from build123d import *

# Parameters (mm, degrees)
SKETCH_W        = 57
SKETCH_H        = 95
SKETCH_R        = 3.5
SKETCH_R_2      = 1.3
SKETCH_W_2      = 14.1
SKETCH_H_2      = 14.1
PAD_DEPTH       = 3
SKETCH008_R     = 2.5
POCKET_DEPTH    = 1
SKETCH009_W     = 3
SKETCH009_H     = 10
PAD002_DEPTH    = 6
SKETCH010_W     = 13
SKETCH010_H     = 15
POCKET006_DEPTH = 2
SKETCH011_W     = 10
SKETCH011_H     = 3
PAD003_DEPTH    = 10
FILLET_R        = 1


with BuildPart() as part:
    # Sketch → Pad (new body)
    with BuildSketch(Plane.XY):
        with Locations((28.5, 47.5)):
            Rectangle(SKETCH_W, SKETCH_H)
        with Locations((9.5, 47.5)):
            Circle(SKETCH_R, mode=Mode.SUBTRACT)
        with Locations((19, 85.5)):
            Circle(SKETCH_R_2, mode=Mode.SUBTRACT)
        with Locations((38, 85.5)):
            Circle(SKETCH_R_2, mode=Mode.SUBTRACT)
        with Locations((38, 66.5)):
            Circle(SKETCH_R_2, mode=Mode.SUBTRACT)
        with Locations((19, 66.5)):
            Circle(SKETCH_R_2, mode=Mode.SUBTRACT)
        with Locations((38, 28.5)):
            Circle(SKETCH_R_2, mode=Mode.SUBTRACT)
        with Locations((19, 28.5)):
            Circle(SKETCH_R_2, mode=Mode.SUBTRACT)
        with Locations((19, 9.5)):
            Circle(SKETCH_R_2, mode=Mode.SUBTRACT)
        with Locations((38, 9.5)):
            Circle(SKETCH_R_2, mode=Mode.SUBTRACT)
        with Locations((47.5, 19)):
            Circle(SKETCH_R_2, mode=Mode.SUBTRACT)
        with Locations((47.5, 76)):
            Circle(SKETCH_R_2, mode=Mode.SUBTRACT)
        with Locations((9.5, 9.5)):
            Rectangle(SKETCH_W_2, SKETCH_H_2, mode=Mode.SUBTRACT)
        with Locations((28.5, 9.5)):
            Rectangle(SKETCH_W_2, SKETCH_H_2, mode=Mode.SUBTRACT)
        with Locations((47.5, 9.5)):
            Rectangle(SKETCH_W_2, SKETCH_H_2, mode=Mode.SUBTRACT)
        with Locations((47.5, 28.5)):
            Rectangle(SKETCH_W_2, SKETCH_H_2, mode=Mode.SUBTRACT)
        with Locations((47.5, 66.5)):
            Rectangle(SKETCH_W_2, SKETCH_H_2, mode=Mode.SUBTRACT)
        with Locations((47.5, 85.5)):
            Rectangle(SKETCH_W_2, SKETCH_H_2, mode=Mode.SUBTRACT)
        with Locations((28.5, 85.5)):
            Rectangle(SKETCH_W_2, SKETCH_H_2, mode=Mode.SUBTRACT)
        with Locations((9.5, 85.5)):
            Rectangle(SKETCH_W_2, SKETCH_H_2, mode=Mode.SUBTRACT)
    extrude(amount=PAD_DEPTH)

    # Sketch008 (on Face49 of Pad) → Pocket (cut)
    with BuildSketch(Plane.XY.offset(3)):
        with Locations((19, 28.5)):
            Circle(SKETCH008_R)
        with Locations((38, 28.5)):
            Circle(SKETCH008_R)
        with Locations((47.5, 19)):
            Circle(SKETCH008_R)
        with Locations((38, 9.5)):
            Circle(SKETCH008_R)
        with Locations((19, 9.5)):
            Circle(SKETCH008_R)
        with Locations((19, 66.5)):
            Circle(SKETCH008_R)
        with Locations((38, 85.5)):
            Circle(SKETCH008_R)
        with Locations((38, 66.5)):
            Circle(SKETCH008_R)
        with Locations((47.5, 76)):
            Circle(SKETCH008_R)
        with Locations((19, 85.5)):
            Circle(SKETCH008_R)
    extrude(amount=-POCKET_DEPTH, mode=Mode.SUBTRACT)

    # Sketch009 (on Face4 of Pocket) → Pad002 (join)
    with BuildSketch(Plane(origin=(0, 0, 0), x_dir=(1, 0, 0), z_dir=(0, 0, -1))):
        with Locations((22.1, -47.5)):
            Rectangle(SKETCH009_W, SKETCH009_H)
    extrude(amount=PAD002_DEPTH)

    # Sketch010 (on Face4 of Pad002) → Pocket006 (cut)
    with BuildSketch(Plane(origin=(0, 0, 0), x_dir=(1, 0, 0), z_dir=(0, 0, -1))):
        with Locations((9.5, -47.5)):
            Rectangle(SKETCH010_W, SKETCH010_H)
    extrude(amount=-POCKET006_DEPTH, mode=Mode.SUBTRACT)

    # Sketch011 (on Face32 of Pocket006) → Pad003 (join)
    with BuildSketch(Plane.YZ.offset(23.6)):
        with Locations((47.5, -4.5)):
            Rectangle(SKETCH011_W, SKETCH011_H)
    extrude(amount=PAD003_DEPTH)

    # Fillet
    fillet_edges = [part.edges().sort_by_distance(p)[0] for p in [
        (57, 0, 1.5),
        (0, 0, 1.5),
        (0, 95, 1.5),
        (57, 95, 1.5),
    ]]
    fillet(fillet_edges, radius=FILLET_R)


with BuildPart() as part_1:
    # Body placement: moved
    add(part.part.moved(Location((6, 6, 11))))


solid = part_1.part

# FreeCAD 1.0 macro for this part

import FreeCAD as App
import Part
import Sketcher
Q = App.Units.Quantity


def edges_at(feature, points):
    """Names of the edges that pass closest to the given points."""
    edges = feature.Shape.Edges
    near = lambda p: min(range(len(edges)), key=lambda i: edges[i].distToShape(Part.Vertex(*p))[0])
    return sorted({f"Edge{near(p) + 1}" for p in points})

doc = App.newDocument("Part")
body = doc.addObject("PartDesign::Body", "Body")

sketch1 = body.newObject("Sketcher::SketchObject", "Sketch")
sketch1.AttachmentSupport = (doc.getObject("XY_Plane"), [""])
sketch1.MapMode = "FlatFace"
sketch1.addGeometry(Part.LineSegment(App.Vector(0, 95, 0), App.Vector(0, 0, 0)), False)
sketch1.addGeometry(Part.LineSegment(App.Vector(0, 0, 0), App.Vector(57, 0, 0)), False)
sketch1.addGeometry(Part.LineSegment(App.Vector(57, 0, 0), App.Vector(57, 95, 0)), False)
sketch1.addGeometry(Part.LineSegment(App.Vector(57, 95, 0), App.Vector(0, 95, 0)), False)
sketch1.addGeometry(Part.LineSegment(App.Vector(16.55, 2.45, 0), App.Vector(2.45, 2.45, 0)), False)
sketch1.addGeometry(Part.LineSegment(App.Vector(2.45, 2.45, 0), App.Vector(2.45, 16.55, 0)), False)
sketch1.addGeometry(Part.LineSegment(App.Vector(2.45, 16.55, 0), App.Vector(16.55, 16.55, 0)), False)
sketch1.addGeometry(Part.LineSegment(App.Vector(16.55, 16.55, 0), App.Vector(16.55, 2.45, 0)), False)
sketch1.addGeometry(Part.Circle(App.Vector(19, 9.5, 0), App.Vector(0, 0, 1), 1.3), False)
sketch1.addGeometry(Part.Circle(App.Vector(19, 28.5, 0), App.Vector(0, 0, 1), 1.3), False)
sketch1.addGeometry(Part.LineSegment(App.Vector(35.55, 2.45, 0), App.Vector(21.45, 2.45, 0)), False)
sketch1.addGeometry(Part.LineSegment(App.Vector(21.45, 2.45, 0), App.Vector(21.45, 16.55, 0)), False)
sketch1.addGeometry(Part.LineSegment(App.Vector(21.45, 16.55, 0), App.Vector(35.55, 16.55, 0)), False)
sketch1.addGeometry(Part.LineSegment(App.Vector(35.55, 16.55, 0), App.Vector(35.55, 2.45, 0)), False)
sketch1.addGeometry(Part.Circle(App.Vector(38, 9.5, 0), App.Vector(0, 0, 1), 1.3), False)
sketch1.addGeometry(Part.LineSegment(App.Vector(54.55, 2.45, 0), App.Vector(40.45, 2.45, 0)), False)
sketch1.addGeometry(Part.LineSegment(App.Vector(40.45, 2.45, 0), App.Vector(40.45, 16.55, 0)), False)
sketch1.addGeometry(Part.LineSegment(App.Vector(40.45, 16.55, 0), App.Vector(54.55, 16.55, 0)), False)
sketch1.addGeometry(Part.LineSegment(App.Vector(54.55, 16.55, 0), App.Vector(54.55, 2.45, 0)), False)
sketch1.addGeometry(Part.Circle(App.Vector(47.5, 19, 0), App.Vector(0, 0, 1), 1.3), False)
sketch1.addGeometry(Part.Circle(App.Vector(38, 28.5, 0), App.Vector(0, 0, 1), 1.3), False)
sketch1.addGeometry(Part.LineSegment(App.Vector(54.55, 21.45, 0), App.Vector(40.45, 21.45, 0)), False)
sketch1.addGeometry(Part.LineSegment(App.Vector(40.45, 21.45, 0), App.Vector(40.45, 35.55, 0)), False)
sketch1.addGeometry(Part.LineSegment(App.Vector(40.45, 35.55, 0), App.Vector(54.55, 35.55, 0)), False)
sketch1.addGeometry(Part.LineSegment(App.Vector(54.55, 35.55, 0), App.Vector(54.55, 21.45, 0)), False)
sketch1.addGeometry(Part.Circle(App.Vector(9.5, 47.5, 0), App.Vector(0, 0, 1), 3.5), False)
sketch1.addGeometry(Part.Circle(App.Vector(19, 66.5, 0), App.Vector(0, 0, 1), 1.3), False)
sketch1.addGeometry(Part.LineSegment(App.Vector(16.55, 78.45, 0), App.Vector(2.45, 78.45, 0)), False)
sketch1.addGeometry(Part.LineSegment(App.Vector(2.45, 78.45, 0), App.Vector(2.45, 92.55, 0)), False)
sketch1.addGeometry(Part.LineSegment(App.Vector(2.45, 92.55, 0), App.Vector(16.55, 92.55, 0)), False)
sketch1.addGeometry(Part.LineSegment(App.Vector(16.55, 92.55, 0), App.Vector(16.55, 78.45, 0)), False)
sketch1.addGeometry(Part.Circle(App.Vector(19, 85.5, 0), App.Vector(0, 0, 1), 1.3), False)
sketch1.addGeometry(Part.Circle(App.Vector(38, 66.5, 0), App.Vector(0, 0, 1), 1.3), False)
sketch1.addGeometry(Part.LineSegment(App.Vector(54.55, 59.45, 0), App.Vector(40.45, 59.45, 0)), False)
sketch1.addGeometry(Part.LineSegment(App.Vector(40.45, 59.45, 0), App.Vector(40.45, 73.55, 0)), False)
sketch1.addGeometry(Part.LineSegment(App.Vector(40.45, 73.55, 0), App.Vector(54.55, 73.55, 0)), False)
sketch1.addGeometry(Part.LineSegment(App.Vector(54.55, 73.55, 0), App.Vector(54.55, 59.45, 0)), False)
sketch1.addGeometry(Part.LineSegment(App.Vector(35.55, 78.45, 0), App.Vector(21.45, 78.45, 0)), False)
sketch1.addGeometry(Part.LineSegment(App.Vector(21.45, 78.45, 0), App.Vector(21.45, 92.55, 0)), False)
sketch1.addGeometry(Part.LineSegment(App.Vector(21.45, 92.55, 0), App.Vector(35.55, 92.55, 0)), False)
sketch1.addGeometry(Part.LineSegment(App.Vector(35.55, 92.55, 0), App.Vector(35.55, 78.45, 0)), False)
sketch1.addGeometry(Part.Circle(App.Vector(38, 85.5, 0), App.Vector(0, 0, 1), 1.3), False)
sketch1.addGeometry(Part.Circle(App.Vector(47.5, 76, 0), App.Vector(0, 0, 1), 1.3), False)
sketch1.addGeometry(Part.LineSegment(App.Vector(54.55, 78.45, 0), App.Vector(40.45, 78.45, 0)), False)
sketch1.addGeometry(Part.LineSegment(App.Vector(40.45, 78.45, 0), App.Vector(40.45, 92.55, 0)), False)
sketch1.addGeometry(Part.LineSegment(App.Vector(40.45, 92.55, 0), App.Vector(54.55, 92.55, 0)), False)
sketch1.addGeometry(Part.LineSegment(App.Vector(54.55, 92.55, 0), App.Vector(54.55, 78.45, 0)), False)
sketch1.addConstraint(Sketcher.Constraint("Coincident", 0, 2, 1, 1))
sketch1.addConstraint(Sketcher.Constraint("Coincident", 1, 2, 2, 1))
sketch1.addConstraint(Sketcher.Constraint("Coincident", 2, 2, 3, 1))
sketch1.addConstraint(Sketcher.Constraint("Coincident", 3, 2, 0, 1))
sketch1.addConstraint(Sketcher.Constraint("Coincident", 4, 2, 5, 1))
sketch1.addConstraint(Sketcher.Constraint("Coincident", 5, 2, 6, 1))
sketch1.addConstraint(Sketcher.Constraint("Coincident", 6, 2, 7, 1))
sketch1.addConstraint(Sketcher.Constraint("Coincident", 7, 2, 4, 1))
sketch1.addConstraint(Sketcher.Constraint("Coincident", 10, 2, 11, 1))
sketch1.addConstraint(Sketcher.Constraint("Coincident", 11, 2, 12, 1))
sketch1.addConstraint(Sketcher.Constraint("Coincident", 12, 2, 13, 1))
sketch1.addConstraint(Sketcher.Constraint("Coincident", 13, 2, 10, 1))
sketch1.addConstraint(Sketcher.Constraint("Coincident", 15, 2, 16, 1))
sketch1.addConstraint(Sketcher.Constraint("Coincident", 16, 2, 17, 1))
sketch1.addConstraint(Sketcher.Constraint("Coincident", 17, 2, 18, 1))
sketch1.addConstraint(Sketcher.Constraint("Coincident", 18, 2, 15, 1))
sketch1.addConstraint(Sketcher.Constraint("Coincident", 21, 2, 22, 1))
sketch1.addConstraint(Sketcher.Constraint("Coincident", 22, 2, 23, 1))
sketch1.addConstraint(Sketcher.Constraint("Coincident", 23, 2, 24, 1))
sketch1.addConstraint(Sketcher.Constraint("Coincident", 24, 2, 21, 1))
sketch1.addConstraint(Sketcher.Constraint("Coincident", 27, 2, 28, 1))
sketch1.addConstraint(Sketcher.Constraint("Coincident", 28, 2, 29, 1))
sketch1.addConstraint(Sketcher.Constraint("Coincident", 29, 2, 30, 1))
sketch1.addConstraint(Sketcher.Constraint("Coincident", 30, 2, 27, 1))
sketch1.addConstraint(Sketcher.Constraint("Coincident", 33, 2, 34, 1))
sketch1.addConstraint(Sketcher.Constraint("Coincident", 34, 2, 35, 1))
sketch1.addConstraint(Sketcher.Constraint("Coincident", 35, 2, 36, 1))
sketch1.addConstraint(Sketcher.Constraint("Coincident", 36, 2, 33, 1))
sketch1.addConstraint(Sketcher.Constraint("Coincident", 37, 2, 38, 1))
sketch1.addConstraint(Sketcher.Constraint("Coincident", 38, 2, 39, 1))
sketch1.addConstraint(Sketcher.Constraint("Coincident", 39, 2, 40, 1))
sketch1.addConstraint(Sketcher.Constraint("Coincident", 40, 2, 37, 1))
sketch1.addConstraint(Sketcher.Constraint("Coincident", 43, 2, 44, 1))
sketch1.addConstraint(Sketcher.Constraint("Coincident", 44, 2, 45, 1))
sketch1.addConstraint(Sketcher.Constraint("Coincident", 45, 2, 46, 1))
sketch1.addConstraint(Sketcher.Constraint("Coincident", 46, 2, 43, 1))
sketch1.addConstraint(Sketcher.Constraint("Vertical", 0))
sketch1.addConstraint(Sketcher.Constraint("Horizontal", 1))
sketch1.addConstraint(Sketcher.Constraint("Vertical", 2))
sketch1.addConstraint(Sketcher.Constraint("Horizontal", 3))
sketch1.addConstraint(Sketcher.Constraint("Horizontal", 4))
sketch1.addConstraint(Sketcher.Constraint("Vertical", 5))
sketch1.addConstraint(Sketcher.Constraint("Horizontal", 6))
sketch1.addConstraint(Sketcher.Constraint("Vertical", 7))
sketch1.addConstraint(Sketcher.Constraint("Horizontal", 10))
sketch1.addConstraint(Sketcher.Constraint("Vertical", 11))
sketch1.addConstraint(Sketcher.Constraint("Horizontal", 12))
sketch1.addConstraint(Sketcher.Constraint("Vertical", 13))
sketch1.addConstraint(Sketcher.Constraint("Horizontal", 15))
sketch1.addConstraint(Sketcher.Constraint("Vertical", 16))
sketch1.addConstraint(Sketcher.Constraint("Horizontal", 17))
sketch1.addConstraint(Sketcher.Constraint("Vertical", 18))
sketch1.addConstraint(Sketcher.Constraint("Horizontal", 21))
sketch1.addConstraint(Sketcher.Constraint("Vertical", 22))
sketch1.addConstraint(Sketcher.Constraint("Horizontal", 23))
sketch1.addConstraint(Sketcher.Constraint("Vertical", 24))
sketch1.addConstraint(Sketcher.Constraint("Horizontal", 27))
sketch1.addConstraint(Sketcher.Constraint("Vertical", 28))
sketch1.addConstraint(Sketcher.Constraint("Horizontal", 29))
sketch1.addConstraint(Sketcher.Constraint("Vertical", 30))
sketch1.addConstraint(Sketcher.Constraint("Horizontal", 33))
sketch1.addConstraint(Sketcher.Constraint("Vertical", 34))
sketch1.addConstraint(Sketcher.Constraint("Horizontal", 35))
sketch1.addConstraint(Sketcher.Constraint("Vertical", 36))
sketch1.addConstraint(Sketcher.Constraint("Horizontal", 37))
sketch1.addConstraint(Sketcher.Constraint("Vertical", 38))
sketch1.addConstraint(Sketcher.Constraint("Horizontal", 39))
sketch1.addConstraint(Sketcher.Constraint("Vertical", 40))
sketch1.addConstraint(Sketcher.Constraint("Horizontal", 43))
sketch1.addConstraint(Sketcher.Constraint("Vertical", 44))
sketch1.addConstraint(Sketcher.Constraint("Horizontal", 45))
sketch1.addConstraint(Sketcher.Constraint("Vertical", 46))
sketch1.addConstraint(Sketcher.Constraint("Coincident", 0, 2, -1, 1))
sketch1.addConstraint(Sketcher.Constraint("Equal", 8, 9))
sketch1.addConstraint(Sketcher.Constraint("Equal", 9, 14))
sketch1.addConstraint(Sketcher.Constraint("Equal", 14, 19))
sketch1.addConstraint(Sketcher.Constraint("Equal", 19, 20))
sketch1.addConstraint(Sketcher.Constraint("Equal", 20, 26))
sketch1.addConstraint(Sketcher.Constraint("Equal", 26, 31))
sketch1.addConstraint(Sketcher.Constraint("Equal", 31, 32))
sketch1.addConstraint(Sketcher.Constraint("Equal", 32, 41))
sketch1.addConstraint(Sketcher.Constraint("Equal", 41, 42))
sketch1.addConstraint(Sketcher.Constraint("Horizontal", 8, 3, 14, 3))
sketch1.addConstraint(Sketcher.Constraint("Horizontal", 9, 3, 20, 3))
sketch1.addConstraint(Sketcher.Constraint("Horizontal", 26, 3, 32, 3))
sketch1.addConstraint(Sketcher.Constraint("Horizontal", 31, 3, 41, 3))
sketch1.addConstraint(Sketcher.Constraint("Horizontal", 7, 2, 10, 2))
sketch1.addConstraint(Sketcher.Constraint("Horizontal", 6, 2, 11, 2))
sketch1.addConstraint(Sketcher.Constraint("Horizontal", 13, 2, 15, 2))
sketch1.addConstraint(Sketcher.Constraint("Horizontal", 12, 2, 16, 2))
sketch1.addConstraint(Sketcher.Constraint("Horizontal", 30, 2, 37, 2))
sketch1.addConstraint(Sketcher.Constraint("Horizontal", 29, 2, 38, 2))
sketch1.addConstraint(Sketcher.Constraint("Horizontal", 40, 2, 43, 2))
sketch1.addConstraint(Sketcher.Constraint("Horizontal", 39, 2, 44, 2))
sketch1.addConstraint(Sketcher.Constraint("Vertical", 8, 3, 9, 3))
sketch1.addConstraint(Sketcher.Constraint("Vertical", 14, 3, 20, 3))
sketch1.addConstraint(Sketcher.Constraint("Vertical", 9, 3, 26, 3))
sketch1.addConstraint(Sketcher.Constraint("Vertical", 26, 3, 31, 3))
sketch1.addConstraint(Sketcher.Constraint("Vertical", 20, 3, 32, 3))
sketch1.addConstraint(Sketcher.Constraint("Vertical", 32, 3, 41, 3))
sketch1.addConstraint(Sketcher.Constraint("Vertical", 19, 3, 42, 3))
sketch1.addConstraint(Sketcher.Constraint("Vertical", 16, 2, 21, 2))
sketch1.addConstraint(Sketcher.Constraint("Vertical", 18, 2, 23, 2))
sketch1.addConstraint(Sketcher.Constraint("Vertical", 5, 2, 27, 2))
sketch1.addConstraint(Sketcher.Constraint("Vertical", 7, 2, 29, 2))
sketch1.addConstraint(Sketcher.Constraint("Vertical", 22, 2, 33, 2))
sketch1.addConstraint(Sketcher.Constraint("Vertical", 24, 2, 35, 2))
sketch1.addConstraint(Sketcher.Constraint("Vertical", 11, 2, 37, 2))
sketch1.addConstraint(Sketcher.Constraint("Vertical", 13, 2, 39, 2))
sketch1.addConstraint(Sketcher.Constraint("Vertical", 34, 2, 43, 2))
sketch1.addConstraint(Sketcher.Constraint("Vertical", 36, 2, 45, 2))
sketch1.addConstraint(Sketcher.Constraint("Equal", 6, 10))
sketch1.addConstraint(Sketcher.Constraint("Equal", 12, 15))
sketch1.addConstraint(Sketcher.Constraint("Equal", 45, 5))
sketch1.addConstraint(Sketcher.Constraint("Equal", 18, 22))
sketch1.addConstraint(Sketcher.Constraint("Equal", 24, 28))
sketch1.addConstraint(Sketcher.Constraint("Equal", 30, 34))
sketch1.addConstraint(Sketcher.Constraint("Diameter", 25, Q("7 mm")))
sketch1.addConstraint(Sketcher.Constraint("Diameter", 8, Q("2.6 mm")))
sketch1.addConstraint(Sketcher.Constraint("DistanceX", 1, 1, 1, 2, Q("57 mm")))
sketch1.addConstraint(Sketcher.Constraint("DistanceY", 0, 2, 0, 1, Q("95 mm")))
sketch1.addConstraint(Sketcher.Constraint("DistanceX", 4, 2, 4, 1, Q("14.1 mm")))
sketch1.addConstraint(Sketcher.Constraint("DistanceX", -1, 1, 8, 3, Q("19 mm")))
sketch1.addConstraint(Sketcher.Constraint("DistanceX", -1, 1, 14, 3, Q("38 mm")))
sketch1.addConstraint(Sketcher.Constraint("DistanceY", -1, 1, 19, 3, Q("19 mm")))
sketch1.addConstraint(Sketcher.Constraint("DistanceY", -1, 1, 42, 3, Q("76 mm")))
sketch1.addConstraint(Sketcher.Constraint("DistanceY", 8, 3, 9, 3, Q("19 mm")))
sketch1.addConstraint(Sketcher.Constraint("DistanceY", 9, 3, 25, 3, Q("19 mm")))
sketch1.addConstraint(Sketcher.Constraint("DistanceX", 25, 3, 19, 3, Q("38 mm")))
sketch1.addConstraint(Sketcher.Constraint("DistanceY", 25, 3, 26, 3, Q("19 mm")))
sketch1.addConstraint(Sketcher.Constraint("DistanceY", 26, 3, 31, 3, Q("19 mm")))
sketch1.addConstraint(Sketcher.Constraint("DistanceX", 4, 2, 10, 2, Q("19 mm")))
sketch1.addConstraint(Sketcher.Constraint("DistanceX", 12, 2, 17, 2, Q("19 mm")))
sketch1.addConstraint(Sketcher.Constraint("DistanceY", 16, 2, 22, 2, Q("19 mm")))
sketch1.addConstraint(Sketcher.Constraint("DistanceY", 34, 2, 39, 2, Q("19 mm")))
sketch1.addConstraint(Sketcher.Constraint("DistanceY", -1, 1, 8, 3, Q("9.5 mm")))
sketch1.addConstraint(Sketcher.Constraint("DistanceX", -1, 1, 19, 3, Q("47.5 mm")))
sketch1.addConstraint(Sketcher.Constraint("DistanceY", 22, 2, 33, 2, Q("23.9 mm")))
sketch1.addConstraint(Sketcher.Constraint("DistanceX", -1, 1, 4, 2, Q("2.45 mm")))
sketch1.addConstraint(Sketcher.Constraint("DistanceY", -1, 1, 4, 2, Q("2.45 mm")))
pad1 = body.newObject("PartDesign::Pad", "Pad")
pad1.Profile = sketch1
pad1.Length = 3

sketch2 = body.newObject("Sketcher::SketchObject", "Sketch001")
sketch2.AttachmentSupport = (doc.getObject("XY_Plane"), [""])
sketch2.MapMode = "FlatFace"
sketch2.AttachmentOffset = App.Placement(App.Vector(0, 0, 3), App.Rotation())
sketch2.addGeometry(Part.Circle(App.Vector(19, 28.5, 0), App.Vector(0, 0, 1), 2.5), False)
sketch2.addGeometry(Part.Circle(App.Vector(38, 28.5, 0), App.Vector(0, 0, 1), 2.5), False)
sketch2.addGeometry(Part.Circle(App.Vector(47.5, 19, 0), App.Vector(0, 0, 1), 2.5), False)
sketch2.addGeometry(Part.Circle(App.Vector(38, 9.5, 0), App.Vector(0, 0, 1), 2.5), False)
sketch2.addGeometry(Part.Circle(App.Vector(19, 9.5, 0), App.Vector(0, 0, 1), 2.5), False)
sketch2.addGeometry(Part.Circle(App.Vector(19, 66.5, 0), App.Vector(0, 0, 1), 2.5), False)
sketch2.addGeometry(Part.Circle(App.Vector(38, 85.5, 0), App.Vector(0, 0, 1), 2.5), False)
sketch2.addGeometry(Part.Circle(App.Vector(38, 66.5, 0), App.Vector(0, 0, 1), 2.5), False)
sketch2.addGeometry(Part.Circle(App.Vector(47.5, 76, 0), App.Vector(0, 0, 1), 2.5), False)
sketch2.addGeometry(Part.Circle(App.Vector(19, 85.5, 0), App.Vector(0, 0, 1), 2.5), False)
sketch2.addConstraint(Sketcher.Constraint("Equal", 0, 1))
sketch2.addConstraint(Sketcher.Constraint("Equal", 1, 2))
sketch2.addConstraint(Sketcher.Constraint("Equal", 2, 3))
sketch2.addConstraint(Sketcher.Constraint("Equal", 3, 4))
sketch2.addConstraint(Sketcher.Constraint("Equal", 4, 5))
sketch2.addConstraint(Sketcher.Constraint("Equal", 5, 6))
sketch2.addConstraint(Sketcher.Constraint("Equal", 6, 7))
sketch2.addConstraint(Sketcher.Constraint("Equal", 7, 8))
sketch2.addConstraint(Sketcher.Constraint("Equal", 8, 9))
sketch2.addConstraint(Sketcher.Constraint("Horizontal", 0, 3, 1, 3))
sketch2.addConstraint(Sketcher.Constraint("Horizontal", 3, 3, 4, 3))
sketch2.addConstraint(Sketcher.Constraint("Horizontal", 5, 3, 7, 3))
sketch2.addConstraint(Sketcher.Constraint("Horizontal", 6, 3, 9, 3))
sketch2.addConstraint(Sketcher.Constraint("Vertical", 1, 3, 3, 3))
sketch2.addConstraint(Sketcher.Constraint("Vertical", 0, 3, 4, 3))
sketch2.addConstraint(Sketcher.Constraint("Vertical", 4, 3, 5, 3))
sketch2.addConstraint(Sketcher.Constraint("Vertical", 3, 3, 6, 3))
sketch2.addConstraint(Sketcher.Constraint("Vertical", 6, 3, 7, 3))
sketch2.addConstraint(Sketcher.Constraint("Vertical", 2, 3, 8, 3))
sketch2.addConstraint(Sketcher.Constraint("Vertical", 5, 3, 9, 3))
sketch2.addConstraint(Sketcher.Constraint("Diameter", 0, Q("5 mm")))
sketch2.addConstraint(Sketcher.Constraint("DistanceX", -1, 1, 0, 3, Q("19 mm")))
sketch2.addConstraint(Sketcher.Constraint("DistanceX", -1, 1, 1, 3, Q("38 mm")))
sketch2.addConstraint(Sketcher.Constraint("DistanceY", -1, 1, 2, 3, Q("19 mm")))
sketch2.addConstraint(Sketcher.Constraint("DistanceY", -1, 1, 8, 3, Q("76 mm")))
sketch2.addConstraint(Sketcher.Constraint("DistanceY", 3, 3, 1, 3, Q("19 mm")))
sketch2.addConstraint(Sketcher.Constraint("DistanceY", 0, 3, 5, 3, Q("38 mm")))
sketch2.addConstraint(Sketcher.Constraint("DistanceY", 5, 3, 6, 3, Q("19 mm")))
sketch2.addConstraint(Sketcher.Constraint("DistanceY", -1, 1, 0, 3, Q("28.5 mm")))
sketch2.addConstraint(Sketcher.Constraint("DistanceX", -1, 1, 2, 3, Q("47.5 mm")))
pocket1 = body.newObject("PartDesign::Pocket", "Pocket")
pocket1.Profile = sketch2
pocket1.Length = 1

sketch3 = body.newObject("Sketcher::SketchObject", "Sketch002")
sketch3.AttachmentSupport = (doc.getObject("XY_Plane"), [""])
sketch3.MapMode = "FlatFace"
sketch3.addGeometry(Part.LineSegment(App.Vector(20.6, 42.5, 0), App.Vector(20.6, 52.5, 0)), False)
sketch3.addGeometry(Part.LineSegment(App.Vector(20.6, 52.5, 0), App.Vector(23.6, 52.5, 0)), False)
sketch3.addGeometry(Part.LineSegment(App.Vector(23.6, 52.5, 0), App.Vector(23.6, 42.5, 0)), False)
sketch3.addGeometry(Part.LineSegment(App.Vector(23.6, 42.5, 0), App.Vector(20.6, 42.5, 0)), False)
sketch3.addConstraint(Sketcher.Constraint("Coincident", 0, 2, 1, 1))
sketch3.addConstraint(Sketcher.Constraint("Coincident", 1, 2, 2, 1))
sketch3.addConstraint(Sketcher.Constraint("Coincident", 2, 2, 3, 1))
sketch3.addConstraint(Sketcher.Constraint("Coincident", 3, 2, 0, 1))
sketch3.addConstraint(Sketcher.Constraint("Vertical", 0))
sketch3.addConstraint(Sketcher.Constraint("Horizontal", 1))
sketch3.addConstraint(Sketcher.Constraint("Vertical", 2))
sketch3.addConstraint(Sketcher.Constraint("Horizontal", 3))
sketch3.addConstraint(Sketcher.Constraint("DistanceX", 1, 1, 1, 2, Q("3 mm")))
sketch3.addConstraint(Sketcher.Constraint("DistanceY", 0, 1, 0, 2, Q("10 mm")))
sketch3.addConstraint(Sketcher.Constraint("DistanceX", -1, 1, 0, 2, Q("20.6 mm")))
sketch3.addConstraint(Sketcher.Constraint("DistanceY", -1, 1, 0, 2, Q("52.5 mm")))
pad2 = body.newObject("PartDesign::Pad", "Pad001")
pad2.Profile = sketch3
pad2.Length = 6
pad2.Reversed = True

sketch4 = body.newObject("Sketcher::SketchObject", "Sketch003")
sketch4.AttachmentSupport = (doc.getObject("XY_Plane"), [""])
sketch4.MapMode = "FlatFace"
sketch4.addGeometry(Part.LineSegment(App.Vector(3, 40, 0), App.Vector(3, 55, 0)), False)
sketch4.addGeometry(Part.LineSegment(App.Vector(3, 55, 0), App.Vector(16, 55, 0)), False)
sketch4.addGeometry(Part.LineSegment(App.Vector(16, 55, 0), App.Vector(16, 40, 0)), False)
sketch4.addGeometry(Part.LineSegment(App.Vector(16, 40, 0), App.Vector(3, 40, 0)), False)
sketch4.addConstraint(Sketcher.Constraint("Coincident", 0, 2, 1, 1))
sketch4.addConstraint(Sketcher.Constraint("Coincident", 1, 2, 2, 1))
sketch4.addConstraint(Sketcher.Constraint("Coincident", 2, 2, 3, 1))
sketch4.addConstraint(Sketcher.Constraint("Coincident", 3, 2, 0, 1))
sketch4.addConstraint(Sketcher.Constraint("Vertical", 0))
sketch4.addConstraint(Sketcher.Constraint("Horizontal", 1))
sketch4.addConstraint(Sketcher.Constraint("Vertical", 2))
sketch4.addConstraint(Sketcher.Constraint("Horizontal", 3))
sketch4.addConstraint(Sketcher.Constraint("DistanceX", 1, 1, 1, 2, Q("13 mm")))
sketch4.addConstraint(Sketcher.Constraint("DistanceY", 0, 1, 0, 2, Q("15 mm")))
sketch4.addConstraint(Sketcher.Constraint("DistanceX", -1, 1, 0, 2, Q("3 mm")))
sketch4.addConstraint(Sketcher.Constraint("DistanceY", -1, 1, 0, 2, Q("55 mm")))
pocket2 = body.newObject("PartDesign::Pocket", "Pocket001")
pocket2.Profile = sketch4
pocket2.Length = 2
pocket2.Reversed = True

sketch5 = body.newObject("Sketcher::SketchObject", "Sketch004")
sketch5.AttachmentSupport = (doc.getObject("YZ_Plane"), [""])
sketch5.MapMode = "FlatFace"
sketch5.AttachmentOffset = App.Placement(App.Vector(0, 0, 23.6), App.Rotation())
sketch5.addGeometry(Part.LineSegment(App.Vector(42.5, -3, 0), App.Vector(42.5, -6, 0)), False)
sketch5.addGeometry(Part.LineSegment(App.Vector(42.5, -6, 0), App.Vector(52.5, -6, 0)), False)
sketch5.addGeometry(Part.LineSegment(App.Vector(52.5, -6, 0), App.Vector(52.5, -3, 0)), False)
sketch5.addGeometry(Part.LineSegment(App.Vector(52.5, -3, 0), App.Vector(42.5, -3, 0)), False)
sketch5.addConstraint(Sketcher.Constraint("Coincident", 0, 2, 1, 1))
sketch5.addConstraint(Sketcher.Constraint("Coincident", 1, 2, 2, 1))
sketch5.addConstraint(Sketcher.Constraint("Coincident", 2, 2, 3, 1))
sketch5.addConstraint(Sketcher.Constraint("Coincident", 3, 2, 0, 1))
sketch5.addConstraint(Sketcher.Constraint("Vertical", 0))
sketch5.addConstraint(Sketcher.Constraint("Horizontal", 1))
sketch5.addConstraint(Sketcher.Constraint("Vertical", 2))
sketch5.addConstraint(Sketcher.Constraint("Horizontal", 3))
sketch5.addConstraint(Sketcher.Constraint("DistanceX", 1, 1, 1, 2, Q("10 mm")))
sketch5.addConstraint(Sketcher.Constraint("DistanceY", 0, 2, 0, 1, Q("3 mm")))
sketch5.addConstraint(Sketcher.Constraint("DistanceY", 0, 2, -1, 1, Q("6 mm")))
sketch5.addConstraint(Sketcher.Constraint("DistanceX", -1, 1, 0, 2, Q("42.5 mm")))
pad3 = body.newObject("PartDesign::Pad", "Pad002")
pad3.Profile = sketch5
pad3.Length = 10
doc.recompute()

fillet = body.newObject("PartDesign::Fillet", "Fillet")
fillet.Base = (pad3, edges_at(pad3, [
    (57, 0, 1.5),
    (0, 0, 1.5),
    (0, 95, 1.5),
    (57, 95, 1.5),
]))
fillet.Radius = 1
body2 = doc.addObject("PartDesign::Body", "Body001")
doc.recompute()

body.Placement = App.Placement(App.Vector(6, 6, 11), App.Rotation(App.Vector(0, 0, 1), 0))
boolean = body2.newObject("PartDesign::Boolean", "Boolean")
boolean.Type = "Fuse"
boolean.addObjects([body])

doc.recompute()
